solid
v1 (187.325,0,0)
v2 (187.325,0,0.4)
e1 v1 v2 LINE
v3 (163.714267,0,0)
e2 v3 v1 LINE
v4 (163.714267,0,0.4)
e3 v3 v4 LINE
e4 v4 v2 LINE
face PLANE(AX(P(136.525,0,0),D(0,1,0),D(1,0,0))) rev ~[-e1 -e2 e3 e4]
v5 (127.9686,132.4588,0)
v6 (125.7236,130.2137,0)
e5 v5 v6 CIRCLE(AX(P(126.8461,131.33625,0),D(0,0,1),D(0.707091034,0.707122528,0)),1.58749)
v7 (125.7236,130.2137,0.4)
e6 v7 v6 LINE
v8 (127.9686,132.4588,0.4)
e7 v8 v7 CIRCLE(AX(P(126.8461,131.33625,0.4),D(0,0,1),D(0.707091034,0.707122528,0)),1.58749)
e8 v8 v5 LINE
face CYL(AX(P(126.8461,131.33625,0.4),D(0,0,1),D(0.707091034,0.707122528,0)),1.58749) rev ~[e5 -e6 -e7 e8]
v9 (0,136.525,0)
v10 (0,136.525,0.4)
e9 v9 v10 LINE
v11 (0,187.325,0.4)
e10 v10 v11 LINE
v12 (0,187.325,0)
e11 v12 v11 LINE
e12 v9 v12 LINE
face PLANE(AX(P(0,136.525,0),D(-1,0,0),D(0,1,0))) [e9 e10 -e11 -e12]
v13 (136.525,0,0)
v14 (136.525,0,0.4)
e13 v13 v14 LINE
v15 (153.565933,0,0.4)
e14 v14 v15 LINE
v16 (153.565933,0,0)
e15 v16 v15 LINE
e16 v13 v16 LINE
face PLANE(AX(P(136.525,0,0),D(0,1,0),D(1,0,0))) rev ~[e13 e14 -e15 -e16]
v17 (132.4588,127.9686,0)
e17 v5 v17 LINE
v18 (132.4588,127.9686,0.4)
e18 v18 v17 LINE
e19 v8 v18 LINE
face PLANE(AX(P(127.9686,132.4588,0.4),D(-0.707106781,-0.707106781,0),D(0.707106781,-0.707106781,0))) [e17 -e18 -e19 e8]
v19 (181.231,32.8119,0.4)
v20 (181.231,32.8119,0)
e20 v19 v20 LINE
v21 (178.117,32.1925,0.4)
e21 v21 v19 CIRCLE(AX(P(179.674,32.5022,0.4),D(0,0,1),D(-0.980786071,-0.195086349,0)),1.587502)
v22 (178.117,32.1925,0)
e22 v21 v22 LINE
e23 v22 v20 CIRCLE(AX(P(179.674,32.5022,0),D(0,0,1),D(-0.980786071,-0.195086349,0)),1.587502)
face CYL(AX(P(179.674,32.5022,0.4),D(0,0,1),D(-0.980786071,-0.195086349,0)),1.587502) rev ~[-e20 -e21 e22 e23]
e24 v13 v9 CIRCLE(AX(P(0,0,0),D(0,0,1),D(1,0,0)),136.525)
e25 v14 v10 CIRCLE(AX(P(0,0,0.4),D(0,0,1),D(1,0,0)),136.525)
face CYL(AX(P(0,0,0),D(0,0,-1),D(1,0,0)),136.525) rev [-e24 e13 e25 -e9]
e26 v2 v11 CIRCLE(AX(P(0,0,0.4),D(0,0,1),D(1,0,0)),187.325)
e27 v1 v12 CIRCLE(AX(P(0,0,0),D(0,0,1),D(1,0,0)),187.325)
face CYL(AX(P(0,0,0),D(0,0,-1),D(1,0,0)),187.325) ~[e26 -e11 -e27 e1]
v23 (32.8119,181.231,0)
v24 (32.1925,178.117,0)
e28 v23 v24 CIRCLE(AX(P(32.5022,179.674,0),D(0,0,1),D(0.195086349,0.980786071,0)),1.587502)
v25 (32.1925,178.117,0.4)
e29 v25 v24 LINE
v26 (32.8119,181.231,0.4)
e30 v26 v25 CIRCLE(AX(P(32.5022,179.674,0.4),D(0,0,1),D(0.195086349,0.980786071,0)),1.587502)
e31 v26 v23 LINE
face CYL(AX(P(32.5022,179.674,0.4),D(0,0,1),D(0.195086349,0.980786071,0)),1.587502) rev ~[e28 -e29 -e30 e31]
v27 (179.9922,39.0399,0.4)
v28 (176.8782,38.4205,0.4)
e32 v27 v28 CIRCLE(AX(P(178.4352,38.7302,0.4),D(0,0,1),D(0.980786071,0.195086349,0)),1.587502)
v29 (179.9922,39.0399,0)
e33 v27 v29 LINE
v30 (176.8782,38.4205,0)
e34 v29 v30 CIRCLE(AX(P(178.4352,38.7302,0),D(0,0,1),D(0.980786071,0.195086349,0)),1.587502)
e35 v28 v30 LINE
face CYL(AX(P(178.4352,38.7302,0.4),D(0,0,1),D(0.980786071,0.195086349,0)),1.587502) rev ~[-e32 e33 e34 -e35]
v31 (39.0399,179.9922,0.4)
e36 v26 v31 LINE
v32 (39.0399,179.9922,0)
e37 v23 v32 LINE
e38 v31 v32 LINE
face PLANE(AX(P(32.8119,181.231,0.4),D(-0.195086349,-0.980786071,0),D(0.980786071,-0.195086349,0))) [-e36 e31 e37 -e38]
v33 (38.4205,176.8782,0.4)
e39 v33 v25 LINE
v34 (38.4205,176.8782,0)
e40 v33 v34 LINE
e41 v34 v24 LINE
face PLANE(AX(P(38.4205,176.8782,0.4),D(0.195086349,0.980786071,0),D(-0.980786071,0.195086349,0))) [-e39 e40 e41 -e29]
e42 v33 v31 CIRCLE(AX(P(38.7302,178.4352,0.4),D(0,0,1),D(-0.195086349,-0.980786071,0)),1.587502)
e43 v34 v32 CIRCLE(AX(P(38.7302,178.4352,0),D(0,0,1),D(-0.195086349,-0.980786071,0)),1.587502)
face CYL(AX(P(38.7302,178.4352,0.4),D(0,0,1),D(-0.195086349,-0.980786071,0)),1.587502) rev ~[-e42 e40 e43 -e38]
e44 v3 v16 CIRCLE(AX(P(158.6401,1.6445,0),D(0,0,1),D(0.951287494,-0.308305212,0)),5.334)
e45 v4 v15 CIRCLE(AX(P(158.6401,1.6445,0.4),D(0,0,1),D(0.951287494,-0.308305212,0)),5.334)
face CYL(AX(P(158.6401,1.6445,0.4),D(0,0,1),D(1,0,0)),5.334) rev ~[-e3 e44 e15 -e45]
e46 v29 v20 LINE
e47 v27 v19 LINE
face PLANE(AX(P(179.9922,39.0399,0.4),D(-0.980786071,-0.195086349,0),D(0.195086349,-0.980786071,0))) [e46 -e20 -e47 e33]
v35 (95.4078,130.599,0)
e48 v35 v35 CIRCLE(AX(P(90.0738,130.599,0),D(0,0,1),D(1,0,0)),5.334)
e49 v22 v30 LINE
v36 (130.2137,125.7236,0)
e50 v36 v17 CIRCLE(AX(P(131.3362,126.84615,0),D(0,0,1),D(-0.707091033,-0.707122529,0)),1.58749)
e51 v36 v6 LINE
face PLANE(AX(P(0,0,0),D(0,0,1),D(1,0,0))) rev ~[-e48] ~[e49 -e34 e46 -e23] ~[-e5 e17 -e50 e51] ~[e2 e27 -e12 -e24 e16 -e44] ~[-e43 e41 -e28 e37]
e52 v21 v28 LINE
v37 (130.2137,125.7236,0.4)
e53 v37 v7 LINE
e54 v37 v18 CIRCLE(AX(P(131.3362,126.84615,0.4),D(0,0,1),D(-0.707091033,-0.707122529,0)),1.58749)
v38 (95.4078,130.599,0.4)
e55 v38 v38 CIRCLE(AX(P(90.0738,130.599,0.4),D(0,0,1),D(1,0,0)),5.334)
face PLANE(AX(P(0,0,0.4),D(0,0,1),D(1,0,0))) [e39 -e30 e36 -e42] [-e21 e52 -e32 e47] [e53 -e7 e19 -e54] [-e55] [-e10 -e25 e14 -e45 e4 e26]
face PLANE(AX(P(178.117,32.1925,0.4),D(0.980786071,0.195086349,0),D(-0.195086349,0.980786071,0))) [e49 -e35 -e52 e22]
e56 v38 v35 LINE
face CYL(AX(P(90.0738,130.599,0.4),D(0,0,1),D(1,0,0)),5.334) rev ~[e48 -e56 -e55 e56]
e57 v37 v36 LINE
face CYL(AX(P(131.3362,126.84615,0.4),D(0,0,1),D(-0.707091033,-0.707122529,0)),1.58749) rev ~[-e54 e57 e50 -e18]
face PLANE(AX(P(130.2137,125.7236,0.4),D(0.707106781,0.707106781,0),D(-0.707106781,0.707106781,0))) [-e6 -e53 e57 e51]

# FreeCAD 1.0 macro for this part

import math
import FreeCAD as App
import Part
import Sketcher
Q = App.Units.Quantity

doc = App.newDocument("Part")
body = doc.addObject("PartDesign::Body", "Body")

# Sketch on XY plane
sketch1 = body.newObject("Sketcher::SketchObject", "Sketch")
sketch1.AttachmentSupport = (doc.getObject("XY_Plane"), [""])
sketch1.MapMode = "FlatFace"
sketch1.addGeometry(Part.LineSegment(App.Vector(136.525, 0, 0), App.Vector(187.325, 0, 0)), False)
sketch1.addGeometry(Part.ArcOfCircle(Part.Circle(App.Vector(0, 0, 0), App.Vector(0, 0, 1), 187.325), math.radians(0), math.radians(90)), False)
sketch1.addGeometry(Part.LineSegment(App.Vector(0, 187.325, 0), App.Vector(0, 136.525, 0)), False)
sketch1.addGeometry(Part.ArcOfCircle(Part.Circle(App.Vector(0, 0, 0), App.Vector(0, 0, 1), 136.525), math.radians(0), math.radians(90)), False)
sketch1.addConstraint(Sketcher.Constraint("Coincident", 0, 2, 1, 1))
sketch1.addConstraint(Sketcher.Constraint("Coincident", 1, 2, 2, 1))
sketch1.addConstraint(Sketcher.Constraint("Coincident", 2, 2, 3, 2))
sketch1.addConstraint(Sketcher.Constraint("Coincident", 3, 1, 0, 1))
sketch1.addConstraint(Sketcher.Constraint("Horizontal", 0))
sketch1.addConstraint(Sketcher.Constraint("Vertical", 2))
sketch1.addConstraint(Sketcher.Constraint("Coincident", 1, 3, -1, 1))
sketch1.addConstraint(Sketcher.Constraint("Coincident", 3, 3, -1, 1))
sketch1.addConstraint(Sketcher.Constraint("PointOnObject", 0, 2, -1))
sketch1.addConstraint(Sketcher.Constraint("PointOnObject", 1, 2, -2))
sketch1.addConstraint(Sketcher.Constraint("Radius", 1, Q("7.375 in")))
sketch1.addConstraint(Sketcher.Constraint("Radius", 3, Q("5.375 in")))
pad1 = body.newObject("PartDesign::Pad", "Pad")
pad1.Profile = sketch1
pad1.Length = 0.4

# Sketch on XY plane
sketch2 = body.newObject("Sketcher::SketchObject", "Sketch001")
sketch2.AttachmentSupport = (doc.getObject("XY_Plane"), [""])
sketch2.MapMode = "FlatFace"
sketch2.AttachmentOffset = App.Placement(App.Vector(0, 0, 0.4), App.Rotation())
sketch2.addGeometry(Part.LineSegment(App.Vector(181.231, 32.8119, 0), App.Vector(179.9922, 39.0399, 0)), False)
sketch2.addGeometry(Part.ArcOfCircle(Part.Circle(App.Vector(178.4352, 38.7302, 0), App.Vector(0, 0, 1), 1.587502), math.radians(11.249768), math.radians(191.249768)), False)
sketch2.addGeometry(Part.LineSegment(App.Vector(176.8782, 38.4205, 0), App.Vector(178.117, 32.1925, 0)), False)
sketch2.addGeometry(Part.ArcOfCircle(Part.Circle(App.Vector(179.674, 32.5022, 0), App.Vector(0, 0, 1), 1.587502), math.radians(-168.750232), math.radians(11.249768)), False)
sketch2.addGeometry(Part.LineSegment(App.Vector(125.7236, 130.2137, 0), App.Vector(130.2137, 125.7236, 0)), False)
sketch2.addGeometry(Part.ArcOfCircle(Part.Circle(App.Vector(131.3362, 126.8461, 0), App.Vector(0, 0, 1), 1.587455), math.radians(-135), math.radians(44.997448)), False)
sketch2.addGeometry(Part.LineSegment(App.Vector(132.4588, 127.9686, 0), App.Vector(127.9686, 132.4588, 0)), False)
sketch2.addGeometry(Part.ArcOfCircle(Part.Circle(App.Vector(126.8461, 131.3362, 0), App.Vector(0, 0, 1), 1.587525), math.radians(45.002552), math.radians(225)), False)
sketch2.addGeometry(Part.LineSegment(App.Vector(39.0399, 179.9922, 0), App.Vector(32.8119, 181.231, 0)), False)
sketch2.addGeometry(Part.ArcOfCircle(Part.Circle(App.Vector(32.5022, 179.674, 0), App.Vector(0, 0, 1), 1.587502), math.radians(78.750232), math.radians(258.750232)), False)
sketch2.addGeometry(Part.LineSegment(App.Vector(32.1925, 178.117, 0), App.Vector(38.4205, 176.8782, 0)), False)
sketch2.addGeometry(Part.ArcOfCircle(Part.Circle(App.Vector(38.7302, 178.4352, 0), App.Vector(0, 0, 1), 1.587502), math.radians(-101.249768), math.radians(78.750232)), False)
sketch2.addGeometry(Part.Circle(App.Vector(90.0738, 130.599, 0), App.Vector(0, 0, 1), 5.334), False)
sketch2.addGeometry(Part.Circle(App.Vector(158.6401, 1.6445, 0), App.Vector(0, 0, 1), 5.334), False)
sketch2.addConstraint(Sketcher.Constraint("Tangent", 0, 2, 1, 1))
sketch2.addConstraint(Sketcher.Constraint("Tangent", 1, 2, 2, 1))
sketch2.addConstraint(Sketcher.Constraint("Tangent", 2, 2, 3, 1))
sketch2.addConstraint(Sketcher.Constraint("Tangent", 3, 2, 0, 1))
sketch2.addConstraint(Sketcher.Constraint("Tangent", 4, 2, 5, 1))
sketch2.addConstraint(Sketcher.Constraint("Tangent", 5, 2, 6, 1))
sketch2.addConstraint(Sketcher.Constraint("Tangent", 6, 2, 7, 1))
sketch2.addConstraint(Sketcher.Constraint("Tangent", 7, 2, 4, 1))
sketch2.addConstraint(Sketcher.Constraint("Tangent", 8, 2, 9, 1))
sketch2.addConstraint(Sketcher.Constraint("Tangent", 9, 2, 10, 1))
sketch2.addConstraint(Sketcher.Constraint("Tangent", 10, 2, 11, 1))
sketch2.addConstraint(Sketcher.Constraint("Tangent", 11, 2, 8, 1))
sketch2.addConstraint(Sketcher.Constraint("Equal", 1, 3))
sketch2.addConstraint(Sketcher.Constraint("Equal", 3, 5))
sketch2.addConstraint(Sketcher.Constraint("Equal", 5, 7))
sketch2.addConstraint(Sketcher.Constraint("Equal", 7, 9))
sketch2.addConstraint(Sketcher.Constraint("Equal", 9, 11))
sketch2.addConstraint(Sketcher.Constraint("Equal", 12, 13))
sketch2.addConstraint(Sketcher.Constraint("Equal", 2, 4))
sketch2.addConstraint(Sketcher.Constraint("Equal", 6, 8))
sketch2.addConstraint(Sketcher.Constraint("Diameter", 12, Q("0.42 in")))
sketch2.addConstraint(Sketcher.Constraint("Angle", 4, Q("-45 deg")))
sketch2.addConstraint(Sketcher.Constraint("Radius", 1, Q("0.0625 in")))
sketch2.addConstraint(Sketcher.Constraint("Distance", 0, Q("0.25 in")))
sketch2.addConstraint(Sketcher.Constraint("Angle", 0, Q("101.2498 deg")))
sketch2.addConstraint(Sketcher.Constraint("Angle", 8, Q("168.7502 deg")))
sketch2.addConstraint(Sketcher.Constraint("DistanceX", -1, 1, 1, 3, Q("7.025 in")))
sketch2.addConstraint(Sketcher.Constraint("DistanceY", -1, 1, 11, 3, Q("7.025 in")))
sketch2.addConstraint(Sketcher.Constraint("DistanceY", -1, 1, 0, 2, Q("1.537 in")))
sketch2.addConstraint(Sketcher.Constraint("DistanceX", -1, 1, 11, 2, Q("1.537 in")))
sketch2.addConstraint(Sketcher.Constraint("DistanceX", 5, 3, 1, 2, Q("1.793 in")))
sketch2.addConstraint(Sketcher.Constraint("DistanceY", -1, 1, 12, 3, Q("5.1417 in")))
sketch2.addConstraint(Sketcher.Constraint("DistanceY", 1, 3, 7, 3, Q("3.6459 in")))
sketch2.addConstraint(Sketcher.Constraint("DistanceX", 12, 3, 5, 3, Q("1.6245 in")))
sketch2.addConstraint(Sketcher.Constraint("DistanceX", 13, 3, 3, 3, Q("0.8281 in")))
sketch2.addConstraint(Sketcher.Constraint("DistanceY", 13, 3, 5, 3, Q("4.9292 in")))
pocket1 = body.newObject("PartDesign::Pocket", "Pocket")
pocket1.Profile = sketch2
pocket1.Type = "ThroughAll"

doc.recompute()
